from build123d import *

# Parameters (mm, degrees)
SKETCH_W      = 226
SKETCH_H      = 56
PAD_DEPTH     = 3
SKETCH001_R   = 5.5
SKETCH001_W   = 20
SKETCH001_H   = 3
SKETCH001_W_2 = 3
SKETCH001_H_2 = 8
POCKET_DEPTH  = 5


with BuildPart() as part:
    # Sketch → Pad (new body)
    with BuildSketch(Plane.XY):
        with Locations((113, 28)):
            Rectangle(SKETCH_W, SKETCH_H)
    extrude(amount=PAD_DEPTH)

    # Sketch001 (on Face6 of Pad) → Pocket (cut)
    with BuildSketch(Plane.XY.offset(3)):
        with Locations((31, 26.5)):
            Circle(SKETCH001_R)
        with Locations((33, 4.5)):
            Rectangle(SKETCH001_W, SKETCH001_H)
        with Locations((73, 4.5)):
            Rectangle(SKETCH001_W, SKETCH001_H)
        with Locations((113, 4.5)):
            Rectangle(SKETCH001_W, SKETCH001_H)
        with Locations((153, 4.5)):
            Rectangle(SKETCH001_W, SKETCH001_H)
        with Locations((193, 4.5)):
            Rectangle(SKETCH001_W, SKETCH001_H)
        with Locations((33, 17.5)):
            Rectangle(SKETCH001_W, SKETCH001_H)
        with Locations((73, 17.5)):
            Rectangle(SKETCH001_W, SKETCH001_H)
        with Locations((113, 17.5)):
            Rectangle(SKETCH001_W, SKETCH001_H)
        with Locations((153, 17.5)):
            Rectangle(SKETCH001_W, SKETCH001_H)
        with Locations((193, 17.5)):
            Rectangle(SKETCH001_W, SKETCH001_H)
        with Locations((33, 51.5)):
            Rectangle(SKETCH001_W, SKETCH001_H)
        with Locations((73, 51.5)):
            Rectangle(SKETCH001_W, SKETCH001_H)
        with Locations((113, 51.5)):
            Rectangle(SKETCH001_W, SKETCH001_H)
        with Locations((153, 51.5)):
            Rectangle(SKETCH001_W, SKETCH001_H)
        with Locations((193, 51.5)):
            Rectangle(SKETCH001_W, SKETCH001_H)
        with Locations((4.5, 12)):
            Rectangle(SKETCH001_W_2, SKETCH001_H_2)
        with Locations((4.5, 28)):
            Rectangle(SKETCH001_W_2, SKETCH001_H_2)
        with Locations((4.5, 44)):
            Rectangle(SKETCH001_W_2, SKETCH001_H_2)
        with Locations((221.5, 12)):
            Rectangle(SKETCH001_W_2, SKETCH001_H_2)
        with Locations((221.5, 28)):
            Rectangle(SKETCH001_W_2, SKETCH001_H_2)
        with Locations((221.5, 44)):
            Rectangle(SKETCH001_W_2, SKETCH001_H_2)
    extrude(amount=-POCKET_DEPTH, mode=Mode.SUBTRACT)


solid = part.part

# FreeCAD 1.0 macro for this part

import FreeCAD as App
import Part
import Sketcher
from FreeCAD import Vector
Q = App.Units.Quantity


def add_polygon(sketch, points):
    """Adds a closed chain of lines whose ends are joined by coincident constraints."""
    first, n = sketch.GeometryCount, len(points)
    for a, b in zip(points, points[1:] + points[:1]):
        sketch.addGeometry(Part.LineSegment(App.Vector(*a, 0), App.Vector(*b, 0)), False)
    for i in range(n):
        sketch.addConstraint(Sketcher.Constraint("Coincident", first + i, 2, first + (i + 1) % n, 1))

doc = App.newDocument("Part")
body = doc.addObject("PartDesign::Body", "Body")

sketch1 = body.newObject("Sketcher::SketchObject", "Sketch")
sketch1.AttachmentSupport = (doc.getObject("XY_Plane"), [""])
sketch1.MapMode = "FlatFace"
add_polygon(sketch1, [(0, 56), (0, 0), (226, 0), (226, 56)])
sketch1.addConstraint(Sketcher.Constraint("Vertical", 0))
sketch1.addConstraint(Sketcher.Constraint("Horizontal", 1))
sketch1.addConstraint(Sketcher.Constraint("Vertical", 2))
sketch1.addConstraint(Sketcher.Constraint("Horizontal", 3))
sketch1.addConstraint(Sketcher.Constraint("Coincident", 0, 2, -1, 1))
sketch1.addConstraint(Sketcher.Constraint("DistanceX", 1, 1, 1, 2, Q("226 mm")))
sketch1.addConstraint(Sketcher.Constraint("DistanceY", 0, 2, 0, 1, Q("56 mm")))
pad1 = body.newObject("PartDesign::Pad", "Pad")
pad1.Profile = sketch1
pad1.Length = 3

sketch2 = body.newObject("Sketcher::SketchObject", "Sketch001")
sketch2.AttachmentSupport = (doc.getObject("XY_Plane"), [""])
sketch2.MapMode = "FlatFace"
sketch2.AttachmentOffset = App.Placement(Vector(0, 0, 3), App.Rotation())
sketch2.addGeometry(Part.Circle(Vector(31, 26.5, 0), Vector(0, 0, 1), 5.5), False)
add_polygon(sketch2, [(23, 6), (23, 3), (43, 3), (43, 6)])
add_polygon(sketch2, [(63, 6), (63, 3), (83, 3), (83, 6)])
add_polygon(sketch2, [(103, 6), (103, 3), (123, 3), (123, 6)])
add_polygon(sketch2, [(143, 6), (143, 3), (163, 3), (163, 6)])
add_polygon(sketch2, [(183, 6), (183, 3), (203, 3), (203, 6)])
add_polygon(sketch2, [(23, 19), (23, 16), (43, 16), (43, 19)])
add_polygon(sketch2, [(63, 19), (63, 16), (83, 16), (83, 19)])
add_polygon(sketch2, [(103, 19), (103, 16), (123, 16), (123, 19)])
add_polygon(sketch2, [(143, 19), (143, 16), (163, 16), (163, 19)])
add_polygon(sketch2, [(183, 19), (183, 16), (203, 16), (203, 19)])
add_polygon(sketch2, [(23, 53), (23, 50), (43, 50), (43, 53)])
add_polygon(sketch2, [(63, 53), (63, 50), (83, 50), (83, 53)])
add_polygon(sketch2, [(103, 53), (103, 50), (123, 50), (123, 53)])
add_polygon(sketch2, [(143, 53), (143, 50), (163, 50), (163, 53)])
add_polygon(sketch2, [(183, 53), (183, 50), (203, 50), (203, 53)])
add_polygon(sketch2, [(3, 16), (3, 8), (6, 8), (6, 16)])
add_polygon(sketch2, [(3, 32), (3, 24), (6, 24), (6, 32)])
add_polygon(sketch2, [(3, 48), (3, 40), (6, 40), (6, 48)])
add_polygon(sketch2, [(220, 16), (220, 8), (223, 8), (223, 16)])
add_polygon(sketch2, [(220, 32), (220, 24), (223, 24), (223, 32)])
add_polygon(sketch2, [(220, 48), (220, 40), (223, 40), (223, 48)])
sketch2.addConstraint(Sketcher.Constraint("Vertical", 1))
sketch2.addConstraint(Sketcher.Constraint("Horizontal", 2))
sketch2.addConstraint(Sketcher.Constraint("Vertical", 3))
sketch2.addConstraint(Sketcher.Constraint("Horizontal", 4))
sketch2.addConstraint(Sketcher.Constraint("Vertical", 5))
sketch2.addConstraint(Sketcher.Constraint("Horizontal", 6))
sketch2.addConstraint(Sketcher.Constraint("Vertical", 7))
sketch2.addConstraint(Sketcher.Constraint("Horizontal", 8))
sketch2.addConstraint(Sketcher.Constraint("Vertical", 9))
sketch2.addConstraint(Sketcher.Constraint("Horizontal", 10))
sketch2.addConstraint(Sketcher.Constraint("Vertical", 11))
sketch2.addConstraint(Sketcher.Constraint("Horizontal", 12))
sketch2.addConstraint(Sketcher.Constraint("Vertical", 13))
sketch2.addConstraint(Sketcher.Constraint("Horizontal", 14))
sketch2.addConstraint(Sketcher.Constraint("Vertical", 15))
sketch2.addConstraint(Sketcher.Constraint("Horizontal", 16))
sketch2.addConstraint(Sketcher.Constraint("Vertical", 17))
sketch2.addConstraint(Sketcher.Constraint("Horizontal", 18))
sketch2.addConstraint(Sketcher.Constraint("Vertical", 19))
sketch2.addConstraint(Sketcher.Constraint("Horizontal", 20))
sketch2.addConstraint(Sketcher.Constraint("Vertical", 21))
sketch2.addConstraint(Sketcher.Constraint("Horizontal", 22))
sketch2.addConstraint(Sketcher.Constraint("Vertical", 23))
sketch2.addConstraint(Sketcher.Constraint("Horizontal", 24))
sketch2.addConstraint(Sketcher.Constraint("Vertical", 25))
sketch2.addConstraint(Sketcher.Constraint("Horizontal", 26))
sketch2.addConstraint(Sketcher.Constraint("Vertical", 27))
sketch2.addConstraint(Sketcher.Constraint("Horizontal", 28))
sketch2.addConstraint(Sketcher.Constraint("Vertical", 29))
sketch2.addConstraint(Sketcher.Constraint("Horizontal", 30))
sketch2.addConstraint(Sketcher.Constraint("Vertical", 31))
sketch2.addConstraint(Sketcher.Constraint("Horizontal", 32))
sketch2.addConstraint(Sketcher.Constraint("Vertical", 33))
sketch2.addConstraint(Sketcher.Constraint("Horizontal", 34))
sketch2.addConstraint(Sketcher.Constraint("Vertical", 35))
sketch2.addConstraint(Sketcher.Constraint("Horizontal", 36))
sketch2.addConstraint(Sketcher.Constraint("Vertical", 37))
sketch2.addConstraint(Sketcher.Constraint("Horizontal", 38))
sketch2.addConstraint(Sketcher.Constraint("Vertical", 39))
sketch2.addConstraint(Sketcher.Constraint("Horizontal", 40))
sketch2.addConstraint(Sketcher.Constraint("Vertical", 41))
sketch2.addConstraint(Sketcher.Constraint("Horizontal", 42))
sketch2.addConstraint(Sketcher.Constraint("Vertical", 43))
sketch2.addConstraint(Sketcher.Constraint("Horizontal", 44))
sketch2.addConstraint(Sketcher.Constraint("Vertical", 45))
sketch2.addConstraint(Sketcher.Constraint("Horizontal", 46))
sketch2.addConstraint(Sketcher.Constraint("Vertical", 47))
sketch2.addConstraint(Sketcher.Constraint("Horizontal", 48))
sketch2.addConstraint(Sketcher.Constraint("Vertical", 49))
sketch2.addConstraint(Sketcher.Constraint("Horizontal", 50))
sketch2.addConstraint(Sketcher.Constraint("Vertical", 51))
sketch2.addConstraint(Sketcher.Constraint("Horizontal", 52))
sketch2.addConstraint(Sketcher.Constraint("Vertical", 53))
sketch2.addConstraint(Sketcher.Constraint("Horizontal", 54))
sketch2.addConstraint(Sketcher.Constraint("Vertical", 55))
sketch2.addConstraint(Sketcher.Constraint("Horizontal", 56))
sketch2.addConstraint(Sketcher.Constraint("Vertical", 57))
sketch2.addConstraint(Sketcher.Constraint("Horizontal", 58))
sketch2.addConstraint(Sketcher.Constraint("Vertical", 59))
sketch2.addConstraint(Sketcher.Constraint("Horizontal", 60))
sketch2.addConstraint(Sketcher.Constraint("Vertical", 61))
sketch2.addConstraint(Sketcher.Constraint("Horizontal", 62))
sketch2.addConstraint(Sketcher.Constraint("Vertical", 63))
sketch2.addConstraint(Sketcher.Constraint("Horizontal", 64))
sketch2.addConstraint(Sketcher.Constraint("Vertical", 65))
sketch2.addConstraint(Sketcher.Constraint("Horizontal", 66))
sketch2.addConstraint(Sketcher.Constraint("Vertical", 67))
sketch2.addConstraint(Sketcher.Constraint("Horizontal", 68))
sketch2.addConstraint(Sketcher.Constraint("Vertical", 69))
sketch2.addConstraint(Sketcher.Constraint("Horizontal", 70))
sketch2.addConstraint(Sketcher.Constraint("Vertical", 71))
sketch2.addConstraint(Sketcher.Constraint("Horizontal", 72))
sketch2.addConstraint(Sketcher.Constraint("Vertical", 73))
sketch2.addConstraint(Sketcher.Constraint("Horizontal", 74))
sketch2.addConstraint(Sketcher.Constraint("Vertical", 75))
sketch2.addConstraint(Sketcher.Constraint("Horizontal", 76))
sketch2.addConstraint(Sketcher.Constraint("Vertical", 77))
sketch2.addConstraint(Sketcher.Constraint("Horizontal", 78))
sketch2.addConstraint(Sketcher.Constraint("Vertical", 79))
sketch2.addConstraint(Sketcher.Constraint("Horizontal", 80))
sketch2.addConstraint(Sketcher.Constraint("Vertical", 81))
sketch2.addConstraint(Sketcher.Constraint("Horizontal", 82))
sketch2.addConstraint(Sketcher.Constraint("Vertical", 83))
sketch2.addConstraint(Sketcher.Constraint("Horizontal", 84))
sketch2.addConstraint(Sketcher.Constraint("Horizontal", 2, 2, 5, 2))
sketch2.addConstraint(Sketcher.Constraint("Horizontal", 4, 2, 7, 2))
sketch2.addConstraint(Sketcher.Constraint("Horizontal", 6, 2, 9, 2))
sketch2.addConstraint(Sketcher.Constraint("Horizontal", 8, 2, 11, 2))
sketch2.addConstraint(Sketcher.Constraint("Horizontal", 10, 2, 13, 2))
sketch2.addConstraint(Sketcher.Constraint("Horizontal", 12, 2, 15, 2))
sketch2.addConstraint(Sketcher.Constraint("Horizontal", 14, 2, 17, 2))
sketch2.addConstraint(Sketcher.Constraint("Horizontal", 16, 2, 19, 2))
sketch2.addConstraint(Sketcher.Constraint("Horizontal", 22, 2, 25, 2))
sketch2.addConstraint(Sketcher.Constraint("Horizontal", 24, 2, 27, 2))
sketch2.addConstraint(Sketcher.Constraint("Horizontal", 26, 2, 29, 2))
sketch2.addConstraint(Sketcher.Constraint("Horizontal", 28, 2, 31, 2))
sketch2.addConstraint(Sketcher.Constraint("Horizontal", 30, 2, 33, 2))
sketch2.addConstraint(Sketcher.Constraint("Horizontal", 32, 2, 35, 2))
sketch2.addConstraint(Sketcher.Constraint("Horizontal", 34, 2, 37, 2))
sketch2.addConstraint(Sketcher.Constraint("Horizontal", 36, 2, 39, 2))
sketch2.addConstraint(Sketcher.Constraint("Horizontal", 42, 2, 45, 2))
sketch2.addConstraint(Sketcher.Constraint("Horizontal", 44, 2, 47, 2))
sketch2.addConstraint(Sketcher.Constraint("Horizontal", 46, 2, 49, 2))
sketch2.addConstraint(Sketcher.Constraint("Horizontal", 48, 2, 51, 2))
sketch2.addConstraint(Sketcher.Constraint("Horizontal", 50, 2, 53, 2))
sketch2.addConstraint(Sketcher.Constraint("Horizontal", 52, 2, 55, 2))
sketch2.addConstraint(Sketcher.Constraint("Horizontal", 54, 2, 57, 2))
sketch2.addConstraint(Sketcher.Constraint("Horizontal", 56, 2, 59, 2))
sketch2.addConstraint(Sketcher.Constraint("Horizontal", 38, 2, 63, 2))
sketch2.addConstraint(Sketcher.Constraint("Horizontal", 62, 2, 73, 2))
sketch2.addConstraint(Sketcher.Constraint("Horizontal", 64, 2, 75, 2))
sketch2.addConstraint(Sketcher.Constraint("Horizontal", 66, 2, 77, 2))
sketch2.addConstraint(Sketcher.Constraint("Horizontal", 68, 2, 79, 2))
sketch2.addConstraint(Sketcher.Constraint("Horizontal", 70, 2, 81, 2))
sketch2.addConstraint(Sketcher.Constraint("Horizontal", 72, 2, 83, 2))
sketch2.addConstraint(Sketcher.Constraint("Vertical", 4, 2, 21, 2))
sketch2.addConstraint(Sketcher.Constraint("Vertical", 3, 2, 22, 2))
sketch2.addConstraint(Sketcher.Constraint("Vertical", 8, 2, 25, 2))
sketch2.addConstraint(Sketcher.Constraint("Vertical", 7, 2, 26, 2))
sketch2.addConstraint(Sketcher.Constraint("Vertical", 12, 2, 29, 2))
sketch2.addConstraint(Sketcher.Constraint("Vertical", 11, 2, 30, 2))
sketch2.addConstraint(Sketcher.Constraint("Vertical", 16, 2, 33, 2))
sketch2.addConstraint(Sketcher.Constraint("Vertical", 15, 2, 34, 2))
sketch2.addConstraint(Sketcher.Constraint("Vertical", 20, 2, 37, 2))
sketch2.addConstraint(Sketcher.Constraint("Vertical", 19, 2, 38, 2))
sketch2.addConstraint(Sketcher.Constraint("Vertical", 24, 2, 41, 2))
sketch2.addConstraint(Sketcher.Constraint("Vertical", 23, 2, 42, 2))
sketch2.addConstraint(Sketcher.Constraint("Vertical", 28, 2, 45, 2))
sketch2.addConstraint(Sketcher.Constraint("Vertical", 27, 2, 46, 2))
sketch2.addConstraint(Sketcher.Constraint("Vertical", 32, 2, 49, 2))
sketch2.addConstraint(Sketcher.Constraint("Vertical", 31, 2, 50, 2))
sketch2.addConstraint(Sketcher.Constraint("Vertical", 36, 2, 53, 2))
sketch2.addConstraint(Sketcher.Constraint("Vertical", 35, 2, 54, 2))
sketch2.addConstraint(Sketcher.Constraint("Vertical", 40, 2, 57, 2))
sketch2.addConstraint(Sketcher.Constraint("Vertical", 39, 2, 58, 2))
sketch2.addConstraint(Sketcher.Constraint("Vertical", 64, 2, 65, 2))
sketch2.addConstraint(Sketcher.Constraint("Vertical", 63, 2, 66, 2))
sketch2.addConstraint(Sketcher.Constraint("Vertical", 68, 2, 69, 2))
sketch2.addConstraint(Sketcher.Constraint("Vertical", 67, 2, 70, 2))
sketch2.addConstraint(Sketcher.Constraint("Vertical", 76, 2, 77, 2))
sketch2.addConstraint(Sketcher.Constraint("Vertical", 75, 2, 78, 2))
sketch2.addConstraint(Sketcher.Constraint("Vertical", 80, 2, 81, 2))
sketch2.addConstraint(Sketcher.Constraint("Vertical", 79, 2, 82, 2))
sketch2.addConstraint(Sketcher.Constraint("Equal", 4, 6))
sketch2.addConstraint(Sketcher.Constraint("Equal", 8, 10))
sketch2.addConstraint(Sketcher.Constraint("Equal", 12, 14))
sketch2.addConstraint(Sketcher.Constraint("Equal", 16, 18))
sketch2.addConstraint(Sketcher.Constraint("Equal", 72, 74))
sketch2.addConstraint(Sketcher.Constraint("Equal", 84, 1))
sketch2.addConstraint(Sketcher.Constraint("Equal", 19, 21))
sketch2.addConstraint(Sketcher.Constraint("Equal", 39, 41))
sketch2.addConstraint(Sketcher.Constraint("Equal", 63, 65))
sketch2.addConstraint(Sketcher.Constraint("Equal", 67, 69))
sketch2.addConstraint(Sketcher.Constraint("Diameter", 0, Q("11 mm")))
sketch2.addConstraint(Sketcher.Constraint("DistanceX", 2, 1, 2, 2, Q("20 mm")))
sketch2.addConstraint(Sketcher.Constraint("DistanceX", 62, 1, 62, 2, Q("3 mm")))
sketch2.addConstraint(Sketcher.Constraint("DistanceY", 61, 2, 61, 1, Q("8 mm")))
sketch2.addConstraint(Sketcher.Constraint("DistanceX", -1, 1, 0, 3, Q("31 mm")))
sketch2.addConstraint(Sketcher.Constraint("DistanceX", -1, 1, 1, 2, Q("23 mm")))
sketch2.addConstraint(Sketcher.Constraint("DistanceY", -1, 1, 1, 2, Q("3 mm")))
sketch2.addConstraint(Sketcher.Constraint("DistanceX", -1, 1, 5, 2, Q("63 mm")))
sketch2.addConstraint(Sketcher.Constraint("DistanceX", -1, 1, 9, 2, Q("103 mm")))
sketch2.addConstraint(Sketcher.Constraint("DistanceX", -1, 1, 13, 2, Q("143 mm")))
sketch2.addConstraint(Sketcher.Constraint("DistanceX", -1, 1, 17, 2, Q("183 mm")))
sketch2.addConstraint(Sketcher.Constraint("DistanceY", -1, 1, 21, 2, Q("16 mm")))
sketch2.addConstraint(Sketcher.Constraint("DistanceY", -1, 1, 41, 2, Q("50 mm")))
sketch2.addConstraint(Sketcher.Constraint("DistanceX", -1, 1, 61, 2, Q("3 mm")))
sketch2.addConstraint(Sketcher.Constraint("DistanceY", -1, 1, 65, 2, Q("24 mm")))
sketch2.addConstraint(Sketcher.Constraint("DistanceY", -1, 1, 69, 2, Q("40 mm")))
sketch2.addConstraint(Sketcher.Constraint("DistanceX", -1, 1, 73, 2, Q("220 mm")))
sketch2.addConstraint(Sketcher.Constraint("DistanceY", -1, 1, 0, 3, Q("26.5 mm")))
pocket1 = body.newObject("PartDesign::Pocket", "Pocket")
pocket1.Profile = sketch2
pocket1.Length = 5

doc.recompute()
